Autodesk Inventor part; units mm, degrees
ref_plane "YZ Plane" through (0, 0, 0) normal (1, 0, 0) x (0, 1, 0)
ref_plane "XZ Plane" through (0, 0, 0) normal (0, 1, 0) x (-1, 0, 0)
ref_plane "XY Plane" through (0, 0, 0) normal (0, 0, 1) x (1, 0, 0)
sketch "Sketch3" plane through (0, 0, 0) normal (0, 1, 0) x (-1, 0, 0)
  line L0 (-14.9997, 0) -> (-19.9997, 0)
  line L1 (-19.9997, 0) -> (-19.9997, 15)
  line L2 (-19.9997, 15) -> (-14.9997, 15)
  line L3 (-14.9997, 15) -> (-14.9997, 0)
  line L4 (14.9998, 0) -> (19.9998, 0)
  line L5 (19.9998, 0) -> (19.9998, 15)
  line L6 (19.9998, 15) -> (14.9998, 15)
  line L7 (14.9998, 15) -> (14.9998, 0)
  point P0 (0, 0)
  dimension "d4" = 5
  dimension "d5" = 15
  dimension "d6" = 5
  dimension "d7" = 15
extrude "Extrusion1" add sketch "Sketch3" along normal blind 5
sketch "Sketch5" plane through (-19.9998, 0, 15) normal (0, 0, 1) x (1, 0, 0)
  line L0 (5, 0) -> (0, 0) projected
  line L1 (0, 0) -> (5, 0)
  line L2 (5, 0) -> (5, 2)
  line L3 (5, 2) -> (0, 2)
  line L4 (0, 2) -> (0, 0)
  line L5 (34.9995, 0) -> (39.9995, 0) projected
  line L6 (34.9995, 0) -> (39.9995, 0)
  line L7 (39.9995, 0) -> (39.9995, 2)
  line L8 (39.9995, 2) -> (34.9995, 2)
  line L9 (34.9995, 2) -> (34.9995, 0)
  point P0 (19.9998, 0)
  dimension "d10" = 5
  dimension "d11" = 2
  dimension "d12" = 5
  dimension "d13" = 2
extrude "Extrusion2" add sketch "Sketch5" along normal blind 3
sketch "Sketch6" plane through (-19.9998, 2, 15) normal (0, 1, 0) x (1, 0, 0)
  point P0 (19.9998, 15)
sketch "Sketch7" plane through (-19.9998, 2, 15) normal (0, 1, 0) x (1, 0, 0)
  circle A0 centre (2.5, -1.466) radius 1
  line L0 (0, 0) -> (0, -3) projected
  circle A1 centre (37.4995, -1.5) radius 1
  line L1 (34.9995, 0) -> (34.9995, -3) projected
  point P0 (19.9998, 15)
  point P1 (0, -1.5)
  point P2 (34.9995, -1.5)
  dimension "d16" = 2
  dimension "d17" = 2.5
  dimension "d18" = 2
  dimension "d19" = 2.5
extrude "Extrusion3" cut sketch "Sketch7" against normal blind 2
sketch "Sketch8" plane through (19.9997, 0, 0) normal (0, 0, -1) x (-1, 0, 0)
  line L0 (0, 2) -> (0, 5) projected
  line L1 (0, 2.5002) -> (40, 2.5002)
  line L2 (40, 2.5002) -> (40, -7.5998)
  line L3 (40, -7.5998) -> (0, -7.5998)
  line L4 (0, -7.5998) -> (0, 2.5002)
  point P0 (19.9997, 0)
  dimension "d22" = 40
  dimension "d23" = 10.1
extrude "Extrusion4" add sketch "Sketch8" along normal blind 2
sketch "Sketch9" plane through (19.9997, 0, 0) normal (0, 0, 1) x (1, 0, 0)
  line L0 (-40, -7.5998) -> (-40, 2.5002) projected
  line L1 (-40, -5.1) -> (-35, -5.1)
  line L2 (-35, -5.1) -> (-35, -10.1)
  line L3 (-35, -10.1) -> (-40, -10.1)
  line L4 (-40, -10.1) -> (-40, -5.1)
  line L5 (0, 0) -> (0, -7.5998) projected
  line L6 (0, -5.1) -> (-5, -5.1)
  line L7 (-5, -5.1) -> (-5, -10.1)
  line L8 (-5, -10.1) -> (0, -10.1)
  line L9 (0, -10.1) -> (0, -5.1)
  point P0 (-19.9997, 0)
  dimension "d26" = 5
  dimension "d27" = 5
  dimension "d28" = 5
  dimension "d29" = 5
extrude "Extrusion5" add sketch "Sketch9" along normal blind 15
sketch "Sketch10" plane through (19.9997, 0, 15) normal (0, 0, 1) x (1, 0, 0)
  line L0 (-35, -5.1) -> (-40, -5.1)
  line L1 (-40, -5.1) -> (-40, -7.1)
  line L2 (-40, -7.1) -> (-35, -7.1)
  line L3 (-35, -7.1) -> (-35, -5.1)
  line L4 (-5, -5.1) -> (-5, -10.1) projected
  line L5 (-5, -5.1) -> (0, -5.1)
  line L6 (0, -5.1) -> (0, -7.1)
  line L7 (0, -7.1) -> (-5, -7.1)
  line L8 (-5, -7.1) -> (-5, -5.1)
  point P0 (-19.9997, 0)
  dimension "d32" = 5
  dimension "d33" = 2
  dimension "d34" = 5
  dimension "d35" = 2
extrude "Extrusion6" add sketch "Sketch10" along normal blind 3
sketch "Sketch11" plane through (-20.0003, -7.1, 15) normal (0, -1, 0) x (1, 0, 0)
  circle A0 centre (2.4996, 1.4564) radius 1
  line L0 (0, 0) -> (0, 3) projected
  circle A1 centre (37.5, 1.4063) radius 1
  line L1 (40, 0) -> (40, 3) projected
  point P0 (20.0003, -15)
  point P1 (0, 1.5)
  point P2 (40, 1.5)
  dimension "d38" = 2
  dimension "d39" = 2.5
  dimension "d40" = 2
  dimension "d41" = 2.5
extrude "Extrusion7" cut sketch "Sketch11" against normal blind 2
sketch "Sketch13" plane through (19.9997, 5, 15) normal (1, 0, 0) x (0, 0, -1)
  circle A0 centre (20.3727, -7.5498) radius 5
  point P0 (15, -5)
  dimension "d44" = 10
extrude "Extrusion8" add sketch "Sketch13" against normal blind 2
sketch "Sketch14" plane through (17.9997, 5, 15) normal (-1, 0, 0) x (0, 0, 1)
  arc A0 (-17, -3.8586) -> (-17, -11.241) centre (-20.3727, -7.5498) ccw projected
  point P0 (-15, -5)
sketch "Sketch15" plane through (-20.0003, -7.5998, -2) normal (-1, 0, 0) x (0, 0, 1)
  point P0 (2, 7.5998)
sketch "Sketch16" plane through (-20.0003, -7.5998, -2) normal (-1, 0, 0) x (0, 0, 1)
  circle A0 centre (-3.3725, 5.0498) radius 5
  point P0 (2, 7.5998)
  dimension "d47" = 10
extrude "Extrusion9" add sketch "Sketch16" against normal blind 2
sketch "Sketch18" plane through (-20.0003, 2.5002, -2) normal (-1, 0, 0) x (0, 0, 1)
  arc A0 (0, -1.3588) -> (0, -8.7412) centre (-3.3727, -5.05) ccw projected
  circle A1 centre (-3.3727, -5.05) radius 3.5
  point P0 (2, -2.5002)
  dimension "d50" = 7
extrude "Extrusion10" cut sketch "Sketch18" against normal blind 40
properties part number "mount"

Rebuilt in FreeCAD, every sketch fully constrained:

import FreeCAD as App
import Part
import Sketcher

V = App.Vector
Q = App.Units.Quantity

doc = App.newDocument("Part")
params = doc.addObject("Spreadsheet::Sheet", "Params")
for row, (alias, value) in enumerate([
    ("sketch1_width", "5 mm"),
    ("sketch1_height", "15 mm"),
    ("pad1_length", "5 mm"),
    ("sketch2_width", "5 mm"),
    ("sketch2_height", "2 mm"),
    ("pad2_length", "3 mm"),
    ("sketch3_diameter", "2 mm"),
    ("pocket1_length", "2 mm"),
    ("sketch4_width", "40 mm"),
    ("sketch4_height", "10.1 mm"),
    ("pad3_length", "2 mm"),
    ("sketch5_width", "5 mm"),
    ("pad4_length", "15 mm"),
    ("sketch6_width", "5 mm"),
    ("sketch6_height", "2 mm"),
    ("pad5_length", "3 mm"),
    ("sketch7_diameter", "2 mm"),
    ("pocket2_length", "2 mm"),
    ("sketch8_diameter", "10 mm"),
    ("pad6_length", "2 mm"),
    ("sketch9_diameter", "10 mm"),
    ("pad7_length", "2 mm"),
    ("sketch10_diameter", "7 mm"),
    ("pocket3_length", "40 mm"),
], start=1):
    params.set(f"A{row}", alias)
    params.set(f"B{row}", "=" + value)
    params.setAlias(f"B{row}", alias)

body = doc.addObject("PartDesign::Body", "Body")
body.AllowCompound = True

sketch1 = doc.addObject("Sketcher::SketchObject", "Sketch")
body.addObject(sketch1)
sketch1.AttachmentSupport = (doc.XZ_Plane, [""])
sketch1.MapMode = "FlatFace"
sketch1.addGeometry([
    Part.LineSegment(V(20, 0, 0), V(15, 0, 0)),
    Part.LineSegment(V(15, 0, 0), V(15, 15, 0)),
    Part.LineSegment(V(15, 15, 0), V(20, 15, 0)),
    Part.LineSegment(V(20, 15, 0), V(20, 0, 0)),
    Part.LineSegment(V(-15, 15, 0), V(-15, 0, 0)),
    Part.LineSegment(V(-15, 0, 0), V(-20, 0, 0)),
    Part.LineSegment(V(-20, 0, 0), V(-20, 15, 0)),
    Part.LineSegment(V(-20, 15, 0), V(-15, 15, 0)),
], False)
sketch1.addConstraint([
    Sketcher.Constraint("Coincident", 0, 2, 1, 1),
    Sketcher.Constraint("Coincident", 1, 2, 2, 1),
    Sketcher.Constraint("Coincident", 2, 2, 3, 1),
    Sketcher.Constraint("Coincident", 3, 2, 0, 1),
    Sketcher.Constraint("Coincident", 4, 2, 5, 1),
    Sketcher.Constraint("Coincident", 5, 2, 6, 1),
    Sketcher.Constraint("Coincident", 6, 2, 7, 1),
    Sketcher.Constraint("Coincident", 7, 2, 4, 1),
    Sketcher.Constraint("Horizontal", 0),
    Sketcher.Constraint("Vertical", 1),
    Sketcher.Constraint("Horizontal", 2),
    Sketcher.Constraint("Vertical", 3),
    Sketcher.Constraint("Vertical", 4),
    Sketcher.Constraint("Horizontal", 5),
    Sketcher.Constraint("Vertical", 6),
    Sketcher.Constraint("Horizontal", 7),
    Sketcher.Constraint("Symmetric", 0, 2, 4, 2, -1, 1),
    Sketcher.Constraint("Symmetric", 3, 2, 5, 2, -2),
    Sketcher.Constraint("Horizontal", 2, 2, 6, 2),
    Sketcher.Constraint("DistanceX", 0, 2, 0, 1, Q("5 mm")),
    Sketcher.Constraint("DistanceY", 1, 1, 1, 2, Q("15 mm")),
    Sketcher.Constraint("DistanceX", -1, 1, 0, 2, Q("14.9997 mm")),
])
sketch1.setExpression("Constraints[19]", "Params.sketch1_width")
sketch1.setExpression("Constraints[20]", "Params.sketch1_height")
pad1 = doc.addObject("PartDesign::Pad", "Pad")
body.addObject(pad1)
pad1.Profile = sketch1
pad1.setExpression("Length", "Params.pad1_length")
pad1.Reversed = True

sketch2 = doc.addObject("Sketcher::SketchObject", "Sketch001")
body.addObject(sketch2)
sketch2.AttachmentSupport = (doc.XY_Plane, [""])
sketch2.MapMode = "FlatFace"
sketch2.AttachmentOffset = App.Placement(V(0, 0, 15), App.Rotation())
sketch2.addGeometry([
    Part.LineSegment(V(-20, 0, 0), V(-15, 0, 0)),
    Part.LineSegment(V(-15, 0, 0), V(-15, 2, 0)),
    Part.LineSegment(V(-15, 2, 0), V(-20, 2, 0)),
    Part.LineSegment(V(-20, 2, 0), V(-20, 0, 0)),
    Part.LineSegment(V(15, 2, 0), V(15, 0, 0)),
    Part.LineSegment(V(15, 0, 0), V(20, 0, 0)),
    Part.LineSegment(V(20, 0, 0), V(20, 2, 0)),
    Part.LineSegment(V(20, 2, 0), V(15, 2, 0)),
], False)
sketch2.addConstraint([
    Sketcher.Constraint("Coincident", 0, 2, 1, 1),
    Sketcher.Constraint("Coincident", 1, 2, 2, 1),
    Sketcher.Constraint("Coincident", 2, 2, 3, 1),
    Sketcher.Constraint("Coincident", 3, 2, 0, 1),
    Sketcher.Constraint("Coincident", 4, 2, 5, 1),
    Sketcher.Constraint("Coincident", 5, 2, 6, 1),
    Sketcher.Constraint("Coincident", 6, 2, 7, 1),
    Sketcher.Constraint("Coincident", 7, 2, 4, 1),
    Sketcher.Constraint("Horizontal", 0),
    Sketcher.Constraint("Vertical", 1),
    Sketcher.Constraint("Horizontal", 2),
    Sketcher.Constraint("Vertical", 3),
    Sketcher.Constraint("Vertical", 4),
    Sketcher.Constraint("Horizontal", 5),
    Sketcher.Constraint("Vertical", 6),
    Sketcher.Constraint("Horizontal", 7),
    Sketcher.Constraint("Symmetric", 0, 2, 4, 2, -1, 1),
    Sketcher.Constraint("Symmetric", 3, 2, 5, 2, -2),
    Sketcher.Constraint("Horizontal", 2, 2, 6, 2),
    Sketcher.Constraint("DistanceX", 0, 1, 0, 2, Q("5 mm")),
    Sketcher.Constraint("DistanceY", 1, 1, 1, 2, Q("2 mm")),
    Sketcher.Constraint("DistanceX", 0, 2, -1, 1, Q("14.9998 mm")),
])
sketch2.setExpression("Constraints[19]", "Params.sketch2_width")
sketch2.setExpression("Constraints[20]", "Params.sketch2_height")
pad2 = doc.addObject("PartDesign::Pad", "Pad001")
body.addObject(pad2)
pad2.Profile = sketch2
pad2.setExpression("Length", "Params.pad2_length")

sketch3 = doc.addObject("Sketcher::SketchObject", "Sketch002")
body.addObject(sketch3)
sketch3.AttachmentSupport = (doc.XZ_Plane, [""])
sketch3.MapMode = "FlatFace"
sketch3.AttachmentOffset = App.Placement(V(0, 0, -2), App.Rotation())
sketch3.addGeometry([
    Part.Circle(V(-17.5, 16.5, 0), V(0, 0, 1), 1),
    Part.Circle(V(17.5, 16.5, 0), V(0, 0, 1), 1),
], False)
sketch3.addConstraint([
    Sketcher.Constraint("Equal", 0, 1),
    Sketcher.Constraint("Diameter", 0, Q("2 mm")),
    Sketcher.Constraint("DistanceY", -1, 1, 1, 3, Q("16.5 mm")),
    Sketcher.Constraint("DistanceY", -1, 1, 0, 3, Q("16.466 mm")),
    Sketcher.Constraint("DistanceX", 0, 3, -1, 1, Q("17.4998 mm")),
    Sketcher.Constraint("DistanceX", -1, 1, 1, 3, Q("17.4997 mm")),
])
sketch3.setExpression("Constraints[1]", "Params.sketch3_diameter")
pocket1 = doc.addObject("PartDesign::Pocket", "Pocket")
body.addObject(pocket1)
pocket1.Profile = sketch3
pocket1.setExpression("Length", "Params.pocket1_length")
pocket1.Reversed = True

sketch4 = doc.addObject("Sketcher::SketchObject", "Sketch003")
body.addObject(sketch4)
sketch4.AttachmentSupport = (doc.XY_Plane, [""])
sketch4.MapMode = "FlatFace"
sketch4.addGeometry([
    Part.LineSegment(V(20, 3, 0), V(20, -8, 0)),
    Part.LineSegment(V(20, -8, 0), V(-20, -8, 0)),
    Part.LineSegment(V(-20, -8, 0), V(-20, 3, 0)),
    Part.LineSegment(V(-20, 3, 0), V(20, 3, 0)),
], False)
sketch4.addConstraint([
    Sketcher.Constraint("Coincident", 0, 2, 1, 1),
    Sketcher.Constraint("Coincident", 1, 2, 2, 1),
    Sketcher.Constraint("Coincident", 2, 2, 3, 1),
    Sketcher.Constraint("Coincident", 3, 2, 0, 1),
    Sketcher.Constraint("Vertical", 0),
    Sketcher.Constraint("Horizontal", 1),
    Sketcher.Constraint("Vertical", 2),
    Sketcher.Constraint("Horizontal", 3),
    Sketcher.Constraint("DistanceX", 1, 2, 1, 1, Q("40 mm")),
    Sketcher.Constraint("DistanceY", 0, 2, 0, 1, Q("10.1 mm")),
    Sketcher.Constraint("DistanceX", -1, 1, 0, 2, Q("19.9997 mm")),
    Sketcher.Constraint("DistanceY", 0, 2, -1, 1, Q("7.5998 mm")),
])
sketch4.setExpression("Constraints[8]", "Params.sketch4_width")
sketch4.setExpression("Constraints[9]", "Params.sketch4_height")
pad3 = doc.addObject("PartDesign::Pad", "Pad002")
body.addObject(pad3)
pad3.Profile = sketch4
pad3.setExpression("Length", "Params.pad3_length")
pad3.Reversed = True

sketch5 = doc.addObject("Sketcher::SketchObject", "Sketch004")
body.addObject(sketch5)
sketch5.AttachmentSupport = (doc.XY_Plane, [""])
sketch5.MapMode = "FlatFace"
sketch5.addGeometry([
    Part.LineSegment(V(-20, -5, 0), V(-20, -10, 0)),
    Part.LineSegment(V(-20, -10, 0), V(-15, -10, 0)),
    Part.LineSegment(V(-15, -10, 0), V(-15, -5, 0)),
    Part.LineSegment(V(-15, -5, 0), V(-20, -5, 0)),
    Part.LineSegment(V(20, -10, 0), V(20, -5, 0)),
    Part.LineSegment(V(20, -5, 0), V(15, -5, 0)),
    Part.LineSegment(V(15, -5, 0), V(15, -10, 0)),
    Part.LineSegment(V(15, -10, 0), V(20, -10, 0)),
], False)
sketch5.addConstraint([
    Sketcher.Constraint("Coincident", 0, 2, 1, 1),
    Sketcher.Constraint("Coincident", 1, 2, 2, 1),
    Sketcher.Constraint("Coincident", 2, 2, 3, 1),
    Sketcher.Constraint("Coincident", 3, 2, 0, 1),
    Sketcher.Constraint("Coincident", 4, 2, 5, 1),
    Sketcher.Constraint("Coincident", 5, 2, 6, 1),
    Sketcher.Constraint("Coincident", 6, 2, 7, 1),
    Sketcher.Constraint("Coincident", 7, 2, 4, 1),
    Sketcher.Constraint("Vertical", 0),
    Sketcher.Constraint("Horizontal", 1),
    Sketcher.Constraint("Vertical", 2),
    Sketcher.Constraint("Horizontal", 3),
    Sketcher.Constraint("Vertical", 4),
    Sketcher.Constraint("Horizontal", 5),
    Sketcher.Constraint("Vertical", 6),
    Sketcher.Constraint("Horizontal", 7),
    Sketcher.Constraint("Horizontal", 3, 2, 4, 2),
    Sketcher.Constraint("Horizontal", 1, 2, 6, 2),
    Sketcher.Constraint("Equal", 3, 5),
    Sketcher.Constraint("Equal", 7, 0),
    Sketcher.Constraint("DistanceX", 1, 1, 1, 2, Q("5 mm")),
    Sketcher.Constraint("DistanceX", 2, 2, 4, 2, Q("35 mm")),
    Sketcher.Constraint("DistanceY", 0, 2, -1, 1, Q("10.1 mm")),
    Sketcher.Constraint("DistanceX", 0, 2, -1, 1, Q("20.0003 mm")),
])
sketch5.setExpression("Constraints[20]", "Params.sketch5_width")
pad4 = doc.addObject("PartDesign::Pad", "Pad003")
body.addObject(pad4)
pad4.Profile = sketch5
pad4.setExpression("Length", "Params.pad4_length")

sketch6 = doc.addObject("Sketcher::SketchObject", "Sketch005")
body.addObject(sketch6)
sketch6.AttachmentSupport = (doc.XY_Plane, [""])
sketch6.MapMode = "FlatFace"
sketch6.AttachmentOffset = App.Placement(V(0, 0, 15), App.Rotation())
sketch6.addGeometry([
    Part.LineSegment(V(-15, -7.1, 0), V(-15, -5.1, 0)),
    Part.LineSegment(V(-15, -5.1, 0), V(-20, -5.1, 0)),
    Part.LineSegment(V(-20, -5.1, 0), V(-20, -7.1, 0)),
    Part.LineSegment(V(-20, -7.1, 0), V(-15, -7.1, 0)),
    Part.LineSegment(V(20, -5.1, 0), V(15, -5.1, 0)),
    Part.LineSegment(V(15, -5.1, 0), V(15, -7.1, 0)),
    Part.LineSegment(V(15, -7.1, 0), V(20, -7.1, 0)),
    Part.LineSegment(V(20, -7.1, 0), V(20, -5.1, 0)),
], False)
sketch6.addConstraint([
    Sketcher.Constraint("Coincident", 0, 2, 1, 1),
    Sketcher.Constraint("Coincident", 1, 2, 2, 1),
    Sketcher.Constraint("Coincident", 2, 2, 3, 1),
    Sketcher.Constraint("Coincident", 3, 2, 0, 1),
    Sketcher.Constraint("Coincident", 4, 2, 5, 1),
    Sketcher.Constraint("Coincident", 5, 2, 6, 1),
    Sketcher.Constraint("Coincident", 6, 2, 7, 1),
    Sketcher.Constraint("Coincident", 7, 2, 4, 1),
    Sketcher.Constraint("Vertical", 0),
    Sketcher.Constraint("Horizontal", 1),
    Sketcher.Constraint("Vertical", 2),
    Sketcher.Constraint("Horizontal", 3),
    Sketcher.Constraint("Horizontal", 4),
    Sketcher.Constraint("Vertical", 5),
    Sketcher.Constraint("Horizontal", 6),
    Sketcher.Constraint("Vertical", 7),
    Sketcher.Constraint("Horizontal", 1, 2, 4, 2),
    Sketcher.Constraint("Horizontal", 3, 2, 5, 2),
    Sketcher.Constraint("Equal", 3, 4),
    Sketcher.Constraint("DistanceX", 1, 2, 1, 1, Q("5 mm")),
    Sketcher.Constraint("DistanceY", 0, 1, 0, 2, Q("2 mm")),
    Sketcher.Constraint("DistanceX", 0, 2, 4, 2, Q("30 mm")),
    Sketcher.Constraint("DistanceY", 0, 2, -1, 1, Q("5.1 mm")),
    Sketcher.Constraint("DistanceX", 0, 2, -1, 1, Q("15.0003 mm")),
])
sketch6.setExpression("Constraints[19]", "Params.sketch6_width")
sketch6.setExpression("Constraints[20]", "Params.sketch6_height")
pad5 = doc.addObject("PartDesign::Pad", "Pad004")
body.addObject(pad5)
pad5.Profile = sketch6
pad5.setExpression("Length", "Params.pad5_length")

sketch7 = doc.addObject("Sketcher::SketchObject", "Sketch006")
body.addObject(sketch7)
sketch7.AttachmentSupport = (doc.XZ_Plane, [""])
sketch7.MapMode = "FlatFace"
sketch7.AttachmentOffset = App.Placement(V(0, 0, 7.1), App.Rotation())
sketch7.addGeometry([
    Part.Circle(V(-17.5, 16.5, 0), V(0, 0, 1), 1),
    Part.Circle(V(17.5, 16.4, 0), V(0, 0, 1), 1),
], False)
sketch7.addConstraint([
    Sketcher.Constraint("Equal", 0, 1),
    Sketcher.Constraint("Diameter", 0, Q("2 mm")),
    Sketcher.Constraint("DistanceY", 1, 3, 0, 3, Q("0.05 mm")),
    Sketcher.Constraint("DistanceX", 0, 3, -1, 1, Q("17.5007 mm")),
    Sketcher.Constraint("DistanceY", -1, 1, 0, 3, Q("16.4564 mm")),
    Sketcher.Constraint("DistanceX", -1, 1, 1, 3, Q("17.4997 mm")),
])
sketch7.setExpression("Constraints[1]", "Params.sketch7_diameter")
pocket2 = doc.addObject("PartDesign::Pocket", "Pocket001")
body.addObject(pocket2)
pocket2.Profile = sketch7
pocket2.setExpression("Length", "Params.pocket2_length")

sketch8 = doc.addObject("Sketcher::SketchObject", "Sketch007")
body.addObject(sketch8)
sketch8.AttachmentSupport = (doc.YZ_Plane, [""])
sketch8.MapMode = "FlatFace"
sketch8.AttachmentOffset = App.Placement(V(0, 0, 19.9997), App.Rotation())
sketch8.addGeometry(Part.Circle(V(-3, -5, 0), V(0, 0, 1), 5), False)
sketch8.addConstraint([
    Sketcher.Constraint("Diameter", 0, Q("10 mm")),
    Sketcher.Constraint("DistanceX", 0, 3, -1, 1, Q("2.5498 mm")),
    Sketcher.Constraint("DistanceY", 0, 3, -1, 1, Q("5.3727 mm")),
])
sketch8.setExpression("Constraints[0]", "Params.sketch8_diameter")
pad6 = doc.addObject("PartDesign::Pad", "Pad005")
body.addObject(pad6)
pad6.Profile = sketch8
pad6.setExpression("Length", "Params.pad6_length")
pad6.Reversed = True

sketch9 = doc.addObject("Sketcher::SketchObject", "Sketch008")
body.addObject(sketch9)
sketch9.AttachmentSupport = (doc.YZ_Plane, [""])
sketch9.MapMode = "FlatFace"
sketch9.AttachmentOffset = App.Placement(V(0, 0, -20.0003), App.Rotation())
sketch9.addGeometry(Part.Circle(V(-3, -5, 0), V(0, 0, 1), 5), False)
sketch9.addConstraint([
    Sketcher.Constraint("Diameter", 0, Q("10 mm")),
    Sketcher.Constraint("DistanceX", 0, 3, -1, 1, Q("2.55 mm")),
    Sketcher.Constraint("DistanceY", 0, 3, -1, 1, Q("5.3725 mm")),
])
sketch9.setExpression("Constraints[0]", "Params.sketch9_diameter")
pad7 = doc.addObject("PartDesign::Pad", "Pad006")
body.addObject(pad7)
pad7.Profile = sketch9
pad7.setExpression("Length", "Params.pad7_length")

sketch10 = doc.addObject("Sketcher::SketchObject", "Sketch009")
body.addObject(sketch10)
sketch10.AttachmentSupport = (doc.YZ_Plane, [""])
sketch10.MapMode = "FlatFace"
sketch10.AttachmentOffset = App.Placement(V(0, 0, -20.0003), App.Rotation())
sketch10.addGeometry(Part.Circle(V(-2.5, -5.4, 0), V(0, 0, 1), 3.5), False)
sketch10.addConstraint([
    Sketcher.Constraint("Diameter", 0, Q("7 mm")),
    Sketcher.Constraint("DistanceX", 0, 3, -1, 1, Q("2.5498 mm")),
    Sketcher.Constraint("DistanceY", 0, 3, -1, 1, Q("5.3727 mm")),
])
sketch10.setExpression("Constraints[0]", "Params.sketch10_diameter")
pocket3 = doc.addObject("PartDesign::Pocket", "Pocket002")
body.addObject(pocket3)
pocket3.Profile = sketch10
pocket3.setExpression("Length", "Params.pocket3_length")
pocket3.Reversed = True

doc.recompute()
